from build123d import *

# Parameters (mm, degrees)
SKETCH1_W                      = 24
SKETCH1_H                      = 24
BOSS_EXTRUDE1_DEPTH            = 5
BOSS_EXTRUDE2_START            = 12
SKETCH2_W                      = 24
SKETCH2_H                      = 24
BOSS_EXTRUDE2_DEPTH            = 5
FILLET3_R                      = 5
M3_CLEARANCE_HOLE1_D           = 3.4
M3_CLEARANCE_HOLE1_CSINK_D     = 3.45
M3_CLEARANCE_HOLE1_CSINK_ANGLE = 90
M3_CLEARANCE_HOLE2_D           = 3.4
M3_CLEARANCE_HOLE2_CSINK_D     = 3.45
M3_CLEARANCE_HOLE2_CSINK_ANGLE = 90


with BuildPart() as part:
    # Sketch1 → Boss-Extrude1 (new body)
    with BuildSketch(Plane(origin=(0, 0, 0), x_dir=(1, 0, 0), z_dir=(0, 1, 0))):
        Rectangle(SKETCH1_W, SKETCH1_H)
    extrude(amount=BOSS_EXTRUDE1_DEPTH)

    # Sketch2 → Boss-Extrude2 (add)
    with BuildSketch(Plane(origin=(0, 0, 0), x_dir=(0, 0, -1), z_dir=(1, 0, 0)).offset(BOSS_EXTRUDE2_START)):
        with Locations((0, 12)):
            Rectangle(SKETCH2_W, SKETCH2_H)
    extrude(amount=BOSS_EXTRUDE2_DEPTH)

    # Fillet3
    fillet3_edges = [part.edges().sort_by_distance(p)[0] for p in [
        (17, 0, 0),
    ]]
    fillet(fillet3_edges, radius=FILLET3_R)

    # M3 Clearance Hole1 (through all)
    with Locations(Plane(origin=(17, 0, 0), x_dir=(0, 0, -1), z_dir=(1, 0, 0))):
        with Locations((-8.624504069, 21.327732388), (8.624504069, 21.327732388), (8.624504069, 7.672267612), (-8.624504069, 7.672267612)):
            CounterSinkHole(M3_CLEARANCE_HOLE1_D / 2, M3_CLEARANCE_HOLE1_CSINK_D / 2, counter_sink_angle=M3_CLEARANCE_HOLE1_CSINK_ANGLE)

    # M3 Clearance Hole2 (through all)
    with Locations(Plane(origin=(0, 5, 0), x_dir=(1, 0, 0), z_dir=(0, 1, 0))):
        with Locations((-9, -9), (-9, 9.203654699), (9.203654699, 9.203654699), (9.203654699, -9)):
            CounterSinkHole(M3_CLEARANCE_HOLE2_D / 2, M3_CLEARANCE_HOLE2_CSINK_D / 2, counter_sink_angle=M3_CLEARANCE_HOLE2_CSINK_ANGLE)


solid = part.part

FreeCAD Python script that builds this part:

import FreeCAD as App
import Part
import Sketcher
from FreeCAD import Vector
Q = App.Units.Quantity


def edges_at(feature, points):
    """Names of the edges that pass closest to the given points."""
    edges = feature.Shape.Edges
    near = lambda p: min(range(len(edges)), key=lambda i: edges[i].distToShape(Part.Vertex(*p))[0])
    return sorted({f"Edge{near(p) + 1}" for p in points})


def add_polygon(sketch, points):
    """Adds a closed chain of lines whose ends are joined by coincident constraints."""
    first, n = sketch.GeometryCount, len(points)
    for a, b in zip(points, points[1:] + points[:1]):
        sketch.addGeometry(Part.LineSegment(App.Vector(*a, 0), App.Vector(*b, 0)), False)
    for i in range(n):
        sketch.addConstraint(Sketcher.Constraint("Coincident", first + i, 2, first + (i + 1) % n, 1))

doc = App.newDocument("Part")
body = doc.addObject("PartDesign::Body", "Body")

sketch1 = doc.addObject("Sketcher::SketchObject", "Sketch")
body.addObject(sketch1)
sketch1.AttachmentSupport = (doc.XZ_Plane, [""])
sketch1.MapMode = "FlatFace"
add_polygon(sketch1, [(-12, -12), (-12, 12), (12, 12), (12, -12)])
sketch1.addConstraint([
    Sketcher.Constraint("Vertical", 0),
    Sketcher.Constraint("Horizontal", 1),
    Sketcher.Constraint("Vertical", 2),
    Sketcher.Constraint("Horizontal", 3),
    Sketcher.Constraint("Symmetric", 0, 2, 2, 2, -1, 1),
    Sketcher.Constraint("Equal", 3, 0),
    Sketcher.Constraint("DistanceX", 1, 1, 1, 2, Q("24 mm")),
])
pad1 = doc.addObject("PartDesign::Pad", "Pad")
body.addObject(pad1)
pad1.Profile = sketch1
pad1.Length = 5
pad1.Reversed = True

sketch2 = doc.addObject("Sketcher::SketchObject", "Sketch001")
body.addObject(sketch2)
sketch2.AttachmentSupport = (doc.YZ_Plane, [""])
sketch2.MapMode = "FlatFace"
sketch2.AttachmentOffset = App.Placement(Vector(0, 0, 12), App.Rotation())
add_polygon(sketch2, [(24, 12), (0, 12), (0, -12), (24, -12)])
sketch2.addConstraint([
    Sketcher.Constraint("Horizontal", 0),
    Sketcher.Constraint("Vertical", 1),
    Sketcher.Constraint("Horizontal", 2),
    Sketcher.Constraint("Vertical", 3),
    Sketcher.Constraint("Symmetric", 0, 2, 1, 2, -1, 1),
    Sketcher.Constraint("Equal", 2, 1),
    Sketcher.Constraint("DistanceX", 0, 2, 0, 1, Q("24 mm")),
])
pad2 = doc.addObject("PartDesign::Pad", "Pad001")
body.addObject(pad2)
pad2.Profile = sketch2
pad2.Length = 5
doc.recompute()

fillet = doc.addObject("PartDesign::Fillet", "Fillet")
body.addObject(fillet)
fillet.Base = (pad2, edges_at(pad2, [(17, 0, 0)]))
fillet.Radius = 5

sketch3 = doc.addObject("Sketcher::SketchObject", "Sketch002")
body.addObject(sketch3)
sketch3.AttachmentSupport = (doc.YZ_Plane, [""])
sketch3.MapMode = "FlatFace"
sketch3.AttachmentOffset = App.Placement(Vector(0, 0, 17), App.Rotation())
sketch3.addGeometry([
    Part.Circle(Vector(21.327732, 8.624504, 0), Vector(0, 0, 1), 1.7),
    Part.Circle(Vector(21.327732, -8.624504, 0), Vector(0, 0, 1), 1.7),
    Part.Circle(Vector(7.672268, -8.624504, 0), Vector(0, 0, 1), 1.7),
    Part.Circle(Vector(7.672268, 8.624504, 0), Vector(0, 0, 1), 1.7),
], False)
sketch3.addConstraint([
    Sketcher.Constraint("Equal", 0, 1),
    Sketcher.Constraint("Equal", 1, 2),
    Sketcher.Constraint("Equal", 2, 3),
    Sketcher.Constraint("Symmetric", 0, 3, 1, 3, -1),
    Sketcher.Constraint("Symmetric", 2, 3, 3, 3, -1),
    Sketcher.Constraint("Horizontal", 1, 3, 2, 3),
    Sketcher.Constraint("Diameter", 0, Q("3.4 mm")),
    Sketcher.Constraint("DistanceY", 1, 3, 0, 3, Q("17.249008 mm")),
    Sketcher.Constraint("DistanceX", -1, 1, 0, 3, Q("21.327732 mm")),
    Sketcher.Constraint("DistanceX", -1, 1, 2, 3, Q("7.672268 mm")),
])
doc.recompute()
hole = doc.addObject("PartDesign::Hole", "Hole")
body.addObject(hole)
hole.Profile = sketch3
hole.ThreadType = "None"
hole.Diameter = 3.4
hole.DepthType = "ThroughAll"
hole.HoleCutType = "Countersink"
hole.HoleCutDiameter = 3.45
hole.HoleCutCountersinkAngle = 90

sketch4 = doc.addObject("Sketcher::SketchObject", "Sketch003")
body.addObject(sketch4)
sketch4.AttachmentSupport = (doc.XZ_Plane, [""])
sketch4.MapMode = "FlatFace"
sketch4.AttachmentOffset = App.Placement(Vector(0, 0, -5), App.Rotation())
sketch4.addGeometry([
    Part.Circle(Vector(-9, 9, 0), Vector(0, 0, 1), 1.7),
    Part.Circle(Vector(-9, -9.203655, 0), Vector(0, 0, 1), 1.7),
    Part.Circle(Vector(9.203655, -9.203655, 0), Vector(0, 0, 1), 1.7),
    Part.Circle(Vector(9.203655, 9, 0), Vector(0, 0, 1), 1.7),
], False)
sketch4.addConstraint([
    Sketcher.Constraint("Equal", 0, 1),
    Sketcher.Constraint("Equal", 1, 2),
    Sketcher.Constraint("Equal", 2, 3),
    Sketcher.Constraint("Horizontal", 1, 3, 2, 3),
    Sketcher.Constraint("Horizontal", 0, 3, 3, 3),
    Sketcher.Constraint("Vertical", 0, 3, 1, 3),
    Sketcher.Constraint("Vertical", 2, 3, 3, 3),
    Sketcher.Constraint("Diameter", 0, Q("3.4 mm")),
    Sketcher.Constraint("DistanceX", 0, 3, -1, 1, Q("9 mm")),
    Sketcher.Constraint("DistanceY", -1, 1, 0, 3, Q("9 mm")),
    Sketcher.Constraint("DistanceY", 1, 3, -1, 1, Q("9.203655 mm")),
    Sketcher.Constraint("DistanceX", -1, 1, 2, 3, Q("9.203655 mm")),
])
doc.recompute()
hole2 = doc.addObject("PartDesign::Hole", "Hole001")
body.addObject(hole2)
hole2.Profile = sketch4
hole2.ThreadType = "None"
hole2.Diameter = 3.4
hole2.DepthType = "ThroughAll"
hole2.HoleCutType = "Countersink"
hole2.HoleCutDiameter = 3.45
hole2.HoleCutCountersinkAngle = 90
hole2.Reversed = True

doc.recompute()
